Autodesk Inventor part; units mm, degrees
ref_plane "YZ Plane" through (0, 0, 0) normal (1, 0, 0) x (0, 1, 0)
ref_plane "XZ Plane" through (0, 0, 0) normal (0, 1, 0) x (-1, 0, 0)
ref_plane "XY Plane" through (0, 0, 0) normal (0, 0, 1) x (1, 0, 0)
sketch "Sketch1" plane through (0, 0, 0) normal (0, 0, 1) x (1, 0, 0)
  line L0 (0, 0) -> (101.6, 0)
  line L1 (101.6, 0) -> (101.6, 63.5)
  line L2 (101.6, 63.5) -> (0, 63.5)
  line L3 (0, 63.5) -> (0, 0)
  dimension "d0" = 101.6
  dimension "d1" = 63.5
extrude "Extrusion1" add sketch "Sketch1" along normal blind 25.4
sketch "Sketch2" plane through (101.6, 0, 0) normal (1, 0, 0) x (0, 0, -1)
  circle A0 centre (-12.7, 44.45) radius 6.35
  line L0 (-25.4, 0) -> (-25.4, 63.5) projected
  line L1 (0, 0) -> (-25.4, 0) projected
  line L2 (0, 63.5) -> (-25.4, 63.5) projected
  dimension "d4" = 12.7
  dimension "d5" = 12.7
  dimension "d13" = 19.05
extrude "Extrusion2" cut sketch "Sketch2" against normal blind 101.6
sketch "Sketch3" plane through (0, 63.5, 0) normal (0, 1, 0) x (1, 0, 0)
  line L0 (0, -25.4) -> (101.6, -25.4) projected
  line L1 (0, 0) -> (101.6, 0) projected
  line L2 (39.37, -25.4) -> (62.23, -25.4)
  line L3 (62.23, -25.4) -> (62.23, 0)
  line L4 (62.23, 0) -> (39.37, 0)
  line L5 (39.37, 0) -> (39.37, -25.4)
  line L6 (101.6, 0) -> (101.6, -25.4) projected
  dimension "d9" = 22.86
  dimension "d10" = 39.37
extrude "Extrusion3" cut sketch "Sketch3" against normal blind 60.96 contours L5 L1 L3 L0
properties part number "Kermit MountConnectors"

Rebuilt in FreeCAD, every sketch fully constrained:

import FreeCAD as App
import Part
import Sketcher
from FreeCAD import Vector
Q = App.Units.Quantity


def add_polygon(sketch, points):
    """Adds a closed chain of lines whose ends are joined by coincident constraints."""
    first, n = sketch.GeometryCount, len(points)
    for a, b in zip(points, points[1:] + points[:1]):
        sketch.addGeometry(Part.LineSegment(App.Vector(*a, 0), App.Vector(*b, 0)), False)
    for i in range(n):
        sketch.addConstraint(Sketcher.Constraint("Coincident", first + i, 2, first + (i + 1) % n, 1))

doc = App.newDocument("Part")
body = doc.addObject("PartDesign::Body", "Body")

sketch1 = doc.addObject("Sketcher::SketchObject", "Sketch")
body.addObject(sketch1)
sketch1.AttachmentSupport = (doc.XY_Plane, [""])
sketch1.MapMode = "FlatFace"
add_polygon(sketch1, [(0, 63.5), (0, 0), (101.6, 0), (101.6, 63.5)])
sketch1.addConstraint([
    Sketcher.Constraint("Vertical", 0),
    Sketcher.Constraint("Horizontal", 1),
    Sketcher.Constraint("Vertical", 2),
    Sketcher.Constraint("Horizontal", 3),
    Sketcher.Constraint("Coincident", 0, 2, -1, 1),
    Sketcher.Constraint("DistanceX", 1, 1, 1, 2, Q("4 in")),
    Sketcher.Constraint("DistanceY", 0, 2, 0, 1, Q("2.5 in")),
])
pad1 = doc.addObject("PartDesign::Pad", "Pad")
body.addObject(pad1)
pad1.Profile = sketch1
pad1.Length = Q("1 in")

sketch2 = doc.addObject("Sketcher::SketchObject", "Sketch001")
body.addObject(sketch2)
sketch2.AttachmentSupport = (doc.YZ_Plane, [""])
sketch2.MapMode = "FlatFace"
sketch2.AttachmentOffset = App.Placement(Vector(0, 0, 4 * 25.4), App.Rotation())
sketch2.addGeometry(Part.Circle(Vector(44.45, 12.7, 0), Vector(0, 0, 1), 6.35), False)
sketch2.addConstraint([
    Sketcher.Constraint("Diameter", 0, Q("0.5 in")),
    Sketcher.Constraint("DistanceY", -1, 1, 0, 3, Q("0.5 in")),
    Sketcher.Constraint("DistanceX", -1, 1, 0, 3, Q("1.75 in")),
])
pocket1 = doc.addObject("PartDesign::Pocket", "Pocket")
body.addObject(pocket1)
pocket1.Profile = sketch2
pocket1.Length = Q("4 in")

sketch3 = doc.addObject("Sketcher::SketchObject", "Sketch002")
body.addObject(sketch3)
sketch3.AttachmentSupport = (doc.XZ_Plane, [""])
sketch3.MapMode = "FlatFace"
sketch3.AttachmentOffset = App.Placement(Vector(0, 0, -2.5 * 25.4), App.Rotation())
add_polygon(sketch3, [(39.37, 0), (39.37, 25.4), (62.23, 25.4), (62.23, 0)])
sketch3.addConstraint([
    Sketcher.Constraint("Vertical", 0),
    Sketcher.Constraint("Horizontal", 1),
    Sketcher.Constraint("Vertical", 2),
    Sketcher.Constraint("Horizontal", 3),
    Sketcher.Constraint("PointOnObject", 2, 2, -1),
    Sketcher.Constraint("DistanceX", 1, 1, 1, 2, Q("0.9 in")),
    Sketcher.Constraint("DistanceY", 0, 1, 0, 2, Q("1 in")),
    Sketcher.Constraint("DistanceX", -1, 1, 0, 2, Q("1.55 in")),
])
pocket2 = doc.addObject("PartDesign::Pocket", "Pocket001")
body.addObject(pocket2)
pocket2.Profile = sketch3
pocket2.Length = Q("2.4 in")
pocket2.Reversed = True

doc.recompute()
